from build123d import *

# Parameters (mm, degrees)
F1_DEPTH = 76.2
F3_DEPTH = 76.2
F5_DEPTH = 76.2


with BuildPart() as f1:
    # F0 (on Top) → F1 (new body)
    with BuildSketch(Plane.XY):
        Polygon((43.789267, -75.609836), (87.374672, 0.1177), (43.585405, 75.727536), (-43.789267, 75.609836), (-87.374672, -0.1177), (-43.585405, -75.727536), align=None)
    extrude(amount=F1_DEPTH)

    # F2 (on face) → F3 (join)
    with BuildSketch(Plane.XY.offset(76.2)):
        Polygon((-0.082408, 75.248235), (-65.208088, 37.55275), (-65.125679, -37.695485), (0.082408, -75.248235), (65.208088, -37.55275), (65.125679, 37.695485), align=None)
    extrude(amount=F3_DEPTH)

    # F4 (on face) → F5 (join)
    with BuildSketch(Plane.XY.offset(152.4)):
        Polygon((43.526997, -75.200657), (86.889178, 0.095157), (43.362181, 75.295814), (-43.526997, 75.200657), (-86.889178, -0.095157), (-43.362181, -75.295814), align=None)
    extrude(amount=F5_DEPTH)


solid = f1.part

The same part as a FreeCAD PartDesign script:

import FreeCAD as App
import Part
import Sketcher
from FreeCAD import Vector
Q = App.Units.Quantity

doc = App.newDocument("Part")
body = doc.addObject("PartDesign::Body", "Body")

# Sketch on XY plane
sketch1 = body.newObject("Sketcher::SketchObject", "Sketch")
sketch1.AttachmentSupport = (doc.getObject("XY_Plane"), [""])
sketch1.MapMode = "FlatFace"
sketch1.addGeometry([
    Part.LineSegment(Vector(44, -76, 0), Vector(87, 0, 0)),  # 0
    Part.LineSegment(Vector(87, 0, 0), Vector(44, 76, 0)),  # 1
    Part.LineSegment(Vector(44, 76, 0), Vector(-44, 76, 0)),  # 2
    Part.LineSegment(Vector(-44, 76, 0), Vector(-87, 0, 0)),  # 3
    Part.LineSegment(Vector(-87, 0, 0), Vector(-44, -76, 0)),  # 4
    Part.LineSegment(Vector(-44, -76, 0), Vector(44, -76, 0)),  # 5
], False)
sketch1.addConstraint([
    Sketcher.Constraint("Coincident", 0, 2, 1, 1),
    Sketcher.Constraint("Coincident", 1, 2, 2, 1),
    Sketcher.Constraint("Coincident", 2, 2, 3, 1),
    Sketcher.Constraint("Coincident", 3, 2, 4, 1),
    Sketcher.Constraint("Coincident", 4, 2, 5, 1),
    Sketcher.Constraint("Coincident", 5, 2, 0, 1),
    Sketcher.Constraint("Symmetric", 0, 2, 3, 2, -1, 1),
    Sketcher.Constraint("Symmetric", 1, 2, 4, 2, -1, 1),
    Sketcher.Constraint("Symmetric", 2, 2, 5, 2, -1, 1),
    Sketcher.Constraint("Equal", 0, 1),
    Sketcher.Constraint("Equal", 1, 2),
    Sketcher.Constraint("DistanceY", -1, 1, 0, 2, Q("0.1177 mm")),
    Sketcher.Constraint("DistanceY", 2, 2, 1, 2, Q("0.1177 mm")),
    Sketcher.Constraint("Distance", 0, Q("87.374752 mm")),
    Sketcher.Constraint("DistanceX", 2, 2, 0, 2, Q("131.163939 mm")),
])
pad1 = body.newObject("PartDesign::Pad", "Pad")
pad1.Profile = sketch1
pad1.Length = Q("3 in")

# Sketch on XY plane
sketch2 = body.newObject("Sketcher::SketchObject", "Sketch001")
sketch2.AttachmentSupport = (doc.getObject("XY_Plane"), [""])
sketch2.MapMode = "FlatFace"
sketch2.AttachmentOffset = App.Placement(Vector(0, 0, 3 * 25.4), App.Rotation())
sketch2.addGeometry([
    Part.LineSegment(Vector(0, 75, 0), Vector(-65, 38, 0)),  # 0
    Part.LineSegment(Vector(-65, 38, 0), Vector(-65, -38, 0)),  # 1
    Part.LineSegment(Vector(-65, -38, 0), Vector(0, -75, 0)),  # 2
    Part.LineSegment(Vector(0, -75, 0), Vector(65, -38, 0)),  # 3
    Part.LineSegment(Vector(65, -38, 0), Vector(65, 38, 0)),  # 4
    Part.LineSegment(Vector(65, 38, 0), Vector(0, 75, 0)),  # 5
], False)
sketch2.addConstraint([
    Sketcher.Constraint("Coincident", 0, 2, 1, 1),
    Sketcher.Constraint("Coincident", 1, 2, 2, 1),
    Sketcher.Constraint("Coincident", 2, 2, 3, 1),
    Sketcher.Constraint("Coincident", 3, 2, 4, 1),
    Sketcher.Constraint("Coincident", 4, 2, 5, 1),
    Sketcher.Constraint("Coincident", 5, 2, 0, 1),
    Sketcher.Constraint("Symmetric", 0, 2, 3, 2, -1, 1),
    Sketcher.Constraint("Symmetric", 1, 2, 4, 2, -1, 1),
    Sketcher.Constraint("Symmetric", 2, 2, 5, 2, -1, 1),
    Sketcher.Constraint("Equal", 0, 1),
    Sketcher.Constraint("Equal", 1, 2),
    Sketcher.Constraint("DistanceY", 3, 2, 0, 2, Q("75.1055 mm")),
    Sketcher.Constraint("Distance", 0, Q("75.248281 mm")),
    Sketcher.Constraint("DistanceX", 0, 2, -1, 1, Q("65.208088 mm")),
    Sketcher.Constraint("DistanceX", 1, 2, -1, 1, Q("65.125679 mm")),
])
pad2 = body.newObject("PartDesign::Pad", "Pad001")
pad2.Profile = sketch2
pad2.Length = Q("3 in")

# Sketch on XY plane
sketch3 = body.newObject("Sketcher::SketchObject", "Sketch002")
sketch3.AttachmentSupport = (doc.getObject("XY_Plane"), [""])
sketch3.MapMode = "FlatFace"
sketch3.AttachmentOffset = App.Placement(Vector(0, 0, 6 * 25.4), App.Rotation())
sketch3.addGeometry([
    Part.LineSegment(Vector(44, -75, 0), Vector(87, 0, 0)),  # 0
    Part.LineSegment(Vector(87, 0, 0), Vector(43, 75, 0)),  # 1
    Part.LineSegment(Vector(43, 75, 0), Vector(-44, 75, 0)),  # 2
    Part.LineSegment(Vector(-44, 75, 0), Vector(-87, 0, 0)),  # 3
    Part.LineSegment(Vector(-87, 0, 0), Vector(-43, -75, 0)),  # 4
    Part.LineSegment(Vector(-43, -75, 0), Vector(44, -75, 0)),  # 5
], False)
sketch3.addConstraint([
    Sketcher.Constraint("Coincident", 0, 2, 1, 1),
    Sketcher.Constraint("Coincident", 1, 2, 2, 1),
    Sketcher.Constraint("Coincident", 2, 2, 3, 1),
    Sketcher.Constraint("Coincident", 3, 2, 4, 1),
    Sketcher.Constraint("Coincident", 4, 2, 5, 1),
    Sketcher.Constraint("Coincident", 5, 2, 0, 1),
    Sketcher.Constraint("Symmetric", 0, 2, 3, 2, -1, 1),
    Sketcher.Constraint("Symmetric", 1, 2, 4, 2, -1, 1),
    Sketcher.Constraint("Symmetric", 2, 2, 5, 2, -1, 1),
    Sketcher.Constraint("Equal", 0, 1),
    Sketcher.Constraint("Equal", 1, 2),
    Sketcher.Constraint("DistanceY", 0, 2, 2, 2, Q("75.1055 mm")),
    Sketcher.Constraint("Distance", 0, Q("86.88923 mm")),
    Sketcher.Constraint("DistanceX", -1, 1, 0, 2, Q("86.889178 mm")),
    Sketcher.Constraint("DistanceX", -1, 1, 1, 2, Q("43.362181 mm")),
])
pad3 = body.newObject("PartDesign::Pad", "Pad002")
pad3.Profile = sketch3
pad3.Length = Q("3 in")

doc.recompute()
